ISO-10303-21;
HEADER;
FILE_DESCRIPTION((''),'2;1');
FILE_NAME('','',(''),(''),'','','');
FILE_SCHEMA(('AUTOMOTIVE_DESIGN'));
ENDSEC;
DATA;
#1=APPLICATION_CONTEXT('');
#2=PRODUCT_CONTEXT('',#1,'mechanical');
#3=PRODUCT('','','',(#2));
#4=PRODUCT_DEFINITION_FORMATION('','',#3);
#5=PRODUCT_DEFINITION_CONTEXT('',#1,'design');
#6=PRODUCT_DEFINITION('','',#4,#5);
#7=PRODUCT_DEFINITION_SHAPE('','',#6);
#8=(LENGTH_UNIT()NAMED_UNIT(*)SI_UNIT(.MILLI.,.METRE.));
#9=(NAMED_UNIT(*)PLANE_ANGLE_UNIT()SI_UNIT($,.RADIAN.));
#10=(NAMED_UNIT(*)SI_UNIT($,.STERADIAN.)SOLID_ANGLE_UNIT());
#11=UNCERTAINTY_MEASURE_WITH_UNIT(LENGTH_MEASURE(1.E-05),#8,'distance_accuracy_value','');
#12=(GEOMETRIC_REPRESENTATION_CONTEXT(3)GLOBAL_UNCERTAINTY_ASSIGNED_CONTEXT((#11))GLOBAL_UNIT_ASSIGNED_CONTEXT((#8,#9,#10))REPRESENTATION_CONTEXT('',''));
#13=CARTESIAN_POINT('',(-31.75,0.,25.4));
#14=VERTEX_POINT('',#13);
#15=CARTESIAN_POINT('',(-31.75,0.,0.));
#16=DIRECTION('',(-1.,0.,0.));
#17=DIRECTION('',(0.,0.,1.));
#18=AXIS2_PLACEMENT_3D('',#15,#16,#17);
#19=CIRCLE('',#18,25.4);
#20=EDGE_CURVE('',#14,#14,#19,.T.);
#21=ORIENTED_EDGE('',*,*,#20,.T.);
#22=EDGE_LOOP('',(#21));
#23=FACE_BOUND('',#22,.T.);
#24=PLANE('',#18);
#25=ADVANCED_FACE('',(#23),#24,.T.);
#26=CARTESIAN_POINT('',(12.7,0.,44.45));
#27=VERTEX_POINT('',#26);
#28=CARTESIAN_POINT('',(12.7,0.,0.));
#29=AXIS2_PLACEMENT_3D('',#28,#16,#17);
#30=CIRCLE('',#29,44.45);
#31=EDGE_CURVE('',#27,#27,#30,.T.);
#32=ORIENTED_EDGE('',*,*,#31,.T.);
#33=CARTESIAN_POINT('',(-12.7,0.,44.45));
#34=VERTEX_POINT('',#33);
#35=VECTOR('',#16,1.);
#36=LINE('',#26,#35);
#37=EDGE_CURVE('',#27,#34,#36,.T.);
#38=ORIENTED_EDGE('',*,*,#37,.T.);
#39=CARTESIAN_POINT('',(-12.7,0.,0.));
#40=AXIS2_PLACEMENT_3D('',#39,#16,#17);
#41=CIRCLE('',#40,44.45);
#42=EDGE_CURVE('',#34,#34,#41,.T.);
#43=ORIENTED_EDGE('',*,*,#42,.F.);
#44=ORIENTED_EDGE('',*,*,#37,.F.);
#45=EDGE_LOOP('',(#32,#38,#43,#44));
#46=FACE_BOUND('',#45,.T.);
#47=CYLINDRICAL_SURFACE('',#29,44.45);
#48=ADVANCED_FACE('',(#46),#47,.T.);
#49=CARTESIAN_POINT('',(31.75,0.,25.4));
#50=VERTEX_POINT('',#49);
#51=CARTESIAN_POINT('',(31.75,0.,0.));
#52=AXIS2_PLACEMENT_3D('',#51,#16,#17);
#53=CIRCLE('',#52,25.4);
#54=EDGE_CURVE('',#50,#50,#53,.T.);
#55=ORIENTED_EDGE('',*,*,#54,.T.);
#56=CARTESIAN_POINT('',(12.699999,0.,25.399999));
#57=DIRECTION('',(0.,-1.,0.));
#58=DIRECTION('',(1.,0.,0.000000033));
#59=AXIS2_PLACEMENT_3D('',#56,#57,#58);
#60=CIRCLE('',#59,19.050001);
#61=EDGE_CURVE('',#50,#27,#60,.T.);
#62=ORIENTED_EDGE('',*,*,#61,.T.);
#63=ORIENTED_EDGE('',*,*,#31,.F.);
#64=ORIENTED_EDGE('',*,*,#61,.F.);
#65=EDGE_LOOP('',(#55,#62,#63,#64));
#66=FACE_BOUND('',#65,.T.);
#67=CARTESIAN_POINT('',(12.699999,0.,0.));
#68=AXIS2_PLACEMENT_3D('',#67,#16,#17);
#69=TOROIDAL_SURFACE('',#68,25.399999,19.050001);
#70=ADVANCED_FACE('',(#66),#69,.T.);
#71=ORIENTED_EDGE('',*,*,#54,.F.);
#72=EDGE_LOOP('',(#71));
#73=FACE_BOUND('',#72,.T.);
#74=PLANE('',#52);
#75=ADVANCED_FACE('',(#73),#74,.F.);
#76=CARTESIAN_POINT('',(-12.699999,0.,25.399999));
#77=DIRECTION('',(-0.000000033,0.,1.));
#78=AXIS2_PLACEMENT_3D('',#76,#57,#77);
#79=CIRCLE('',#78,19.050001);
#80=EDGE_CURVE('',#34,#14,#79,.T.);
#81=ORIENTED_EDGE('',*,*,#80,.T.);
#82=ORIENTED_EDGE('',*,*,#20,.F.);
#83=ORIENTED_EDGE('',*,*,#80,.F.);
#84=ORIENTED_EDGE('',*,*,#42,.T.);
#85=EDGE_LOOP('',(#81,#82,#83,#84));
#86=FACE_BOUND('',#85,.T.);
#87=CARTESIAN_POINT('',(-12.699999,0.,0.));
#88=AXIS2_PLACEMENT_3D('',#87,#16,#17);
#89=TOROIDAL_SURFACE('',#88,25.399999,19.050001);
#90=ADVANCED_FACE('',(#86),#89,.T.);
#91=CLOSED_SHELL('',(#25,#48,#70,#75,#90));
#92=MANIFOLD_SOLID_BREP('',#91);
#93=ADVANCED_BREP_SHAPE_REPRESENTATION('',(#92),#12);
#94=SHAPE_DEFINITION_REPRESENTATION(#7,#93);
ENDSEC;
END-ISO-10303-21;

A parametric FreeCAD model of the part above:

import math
import FreeCAD as App
import Part
import Sketcher
Q = App.Units.Quantity

doc = App.newDocument("Part")
body = doc.addObject("PartDesign::Body", "Body")

sketch1 = body.newObject("Sketcher::SketchObject", "Sketch")
sketch1.AttachmentSupport = (doc.getObject("XZ_Plane"), [""])
sketch1.MapMode = "FlatFace"
sketch1.addGeometry(Part.LineSegment(App.Vector(13, 44, 0), App.Vector(-13, 44, 0)), False)
sketch1.addGeometry(Part.ArcOfCircle(Part.Circle(App.Vector(-13, 25, 0), App.Vector(0, 0, 1), 19), math.radians(90), math.radians(180)), False)
sketch1.addGeometry(Part.LineSegment(App.Vector(-32, 25, 0), App.Vector(-32, 0, 0)), False)
sketch1.addGeometry(Part.LineSegment(App.Vector(-32, 0, 0), App.Vector(32, 0, 0)), False)
sketch1.addGeometry(Part.LineSegment(App.Vector(32, 0, 0), App.Vector(32, 25, 0)), False)
sketch1.addGeometry(Part.ArcOfCircle(Part.Circle(App.Vector(13, 25, 0), App.Vector(0, 0, 1), 19), math.radians(0), math.radians(90)), False)
sketch1.addConstraint(Sketcher.Constraint("Tangent", 0, 2, 1, 1))
sketch1.addConstraint(Sketcher.Constraint("Tangent", 1, 2, 2, 1))
sketch1.addConstraint(Sketcher.Constraint("Coincident", 2, 2, 3, 1))
sketch1.addConstraint(Sketcher.Constraint("Coincident", 3, 2, 4, 1))
sketch1.addConstraint(Sketcher.Constraint("Tangent", 4, 2, 5, 1))
sketch1.addConstraint(Sketcher.Constraint("Tangent", 5, 2, 0, 1))
sketch1.addConstraint(Sketcher.Constraint("Horizontal", 0))
sketch1.addConstraint(Sketcher.Constraint("Vertical", 2))
sketch1.addConstraint(Sketcher.Constraint("Horizontal", 3))
sketch1.addConstraint(Sketcher.Constraint("Vertical", 4))
sketch1.addConstraint(Sketcher.Constraint("Equal", 1, 5))
sketch1.addConstraint(Sketcher.Constraint("Symmetric", 2, 2, 3, 2, -1, 1))
sketch1.addConstraint(Sketcher.Constraint("Equal", 0, 2))
sketch1.addConstraint(Sketcher.Constraint("DistanceX", 0, 2, 0, 1, Q("1 in")))
sketch1.addConstraint(Sketcher.Constraint("Radius", 1, Q("0.75 in")))
revolution = body.newObject("PartDesign::Revolution", "Revolution")
revolution.Profile = sketch1
revolution.ReferenceAxis = (sketch1, ["H_Axis"])
revolution.Angle = 360

doc.recompute()
